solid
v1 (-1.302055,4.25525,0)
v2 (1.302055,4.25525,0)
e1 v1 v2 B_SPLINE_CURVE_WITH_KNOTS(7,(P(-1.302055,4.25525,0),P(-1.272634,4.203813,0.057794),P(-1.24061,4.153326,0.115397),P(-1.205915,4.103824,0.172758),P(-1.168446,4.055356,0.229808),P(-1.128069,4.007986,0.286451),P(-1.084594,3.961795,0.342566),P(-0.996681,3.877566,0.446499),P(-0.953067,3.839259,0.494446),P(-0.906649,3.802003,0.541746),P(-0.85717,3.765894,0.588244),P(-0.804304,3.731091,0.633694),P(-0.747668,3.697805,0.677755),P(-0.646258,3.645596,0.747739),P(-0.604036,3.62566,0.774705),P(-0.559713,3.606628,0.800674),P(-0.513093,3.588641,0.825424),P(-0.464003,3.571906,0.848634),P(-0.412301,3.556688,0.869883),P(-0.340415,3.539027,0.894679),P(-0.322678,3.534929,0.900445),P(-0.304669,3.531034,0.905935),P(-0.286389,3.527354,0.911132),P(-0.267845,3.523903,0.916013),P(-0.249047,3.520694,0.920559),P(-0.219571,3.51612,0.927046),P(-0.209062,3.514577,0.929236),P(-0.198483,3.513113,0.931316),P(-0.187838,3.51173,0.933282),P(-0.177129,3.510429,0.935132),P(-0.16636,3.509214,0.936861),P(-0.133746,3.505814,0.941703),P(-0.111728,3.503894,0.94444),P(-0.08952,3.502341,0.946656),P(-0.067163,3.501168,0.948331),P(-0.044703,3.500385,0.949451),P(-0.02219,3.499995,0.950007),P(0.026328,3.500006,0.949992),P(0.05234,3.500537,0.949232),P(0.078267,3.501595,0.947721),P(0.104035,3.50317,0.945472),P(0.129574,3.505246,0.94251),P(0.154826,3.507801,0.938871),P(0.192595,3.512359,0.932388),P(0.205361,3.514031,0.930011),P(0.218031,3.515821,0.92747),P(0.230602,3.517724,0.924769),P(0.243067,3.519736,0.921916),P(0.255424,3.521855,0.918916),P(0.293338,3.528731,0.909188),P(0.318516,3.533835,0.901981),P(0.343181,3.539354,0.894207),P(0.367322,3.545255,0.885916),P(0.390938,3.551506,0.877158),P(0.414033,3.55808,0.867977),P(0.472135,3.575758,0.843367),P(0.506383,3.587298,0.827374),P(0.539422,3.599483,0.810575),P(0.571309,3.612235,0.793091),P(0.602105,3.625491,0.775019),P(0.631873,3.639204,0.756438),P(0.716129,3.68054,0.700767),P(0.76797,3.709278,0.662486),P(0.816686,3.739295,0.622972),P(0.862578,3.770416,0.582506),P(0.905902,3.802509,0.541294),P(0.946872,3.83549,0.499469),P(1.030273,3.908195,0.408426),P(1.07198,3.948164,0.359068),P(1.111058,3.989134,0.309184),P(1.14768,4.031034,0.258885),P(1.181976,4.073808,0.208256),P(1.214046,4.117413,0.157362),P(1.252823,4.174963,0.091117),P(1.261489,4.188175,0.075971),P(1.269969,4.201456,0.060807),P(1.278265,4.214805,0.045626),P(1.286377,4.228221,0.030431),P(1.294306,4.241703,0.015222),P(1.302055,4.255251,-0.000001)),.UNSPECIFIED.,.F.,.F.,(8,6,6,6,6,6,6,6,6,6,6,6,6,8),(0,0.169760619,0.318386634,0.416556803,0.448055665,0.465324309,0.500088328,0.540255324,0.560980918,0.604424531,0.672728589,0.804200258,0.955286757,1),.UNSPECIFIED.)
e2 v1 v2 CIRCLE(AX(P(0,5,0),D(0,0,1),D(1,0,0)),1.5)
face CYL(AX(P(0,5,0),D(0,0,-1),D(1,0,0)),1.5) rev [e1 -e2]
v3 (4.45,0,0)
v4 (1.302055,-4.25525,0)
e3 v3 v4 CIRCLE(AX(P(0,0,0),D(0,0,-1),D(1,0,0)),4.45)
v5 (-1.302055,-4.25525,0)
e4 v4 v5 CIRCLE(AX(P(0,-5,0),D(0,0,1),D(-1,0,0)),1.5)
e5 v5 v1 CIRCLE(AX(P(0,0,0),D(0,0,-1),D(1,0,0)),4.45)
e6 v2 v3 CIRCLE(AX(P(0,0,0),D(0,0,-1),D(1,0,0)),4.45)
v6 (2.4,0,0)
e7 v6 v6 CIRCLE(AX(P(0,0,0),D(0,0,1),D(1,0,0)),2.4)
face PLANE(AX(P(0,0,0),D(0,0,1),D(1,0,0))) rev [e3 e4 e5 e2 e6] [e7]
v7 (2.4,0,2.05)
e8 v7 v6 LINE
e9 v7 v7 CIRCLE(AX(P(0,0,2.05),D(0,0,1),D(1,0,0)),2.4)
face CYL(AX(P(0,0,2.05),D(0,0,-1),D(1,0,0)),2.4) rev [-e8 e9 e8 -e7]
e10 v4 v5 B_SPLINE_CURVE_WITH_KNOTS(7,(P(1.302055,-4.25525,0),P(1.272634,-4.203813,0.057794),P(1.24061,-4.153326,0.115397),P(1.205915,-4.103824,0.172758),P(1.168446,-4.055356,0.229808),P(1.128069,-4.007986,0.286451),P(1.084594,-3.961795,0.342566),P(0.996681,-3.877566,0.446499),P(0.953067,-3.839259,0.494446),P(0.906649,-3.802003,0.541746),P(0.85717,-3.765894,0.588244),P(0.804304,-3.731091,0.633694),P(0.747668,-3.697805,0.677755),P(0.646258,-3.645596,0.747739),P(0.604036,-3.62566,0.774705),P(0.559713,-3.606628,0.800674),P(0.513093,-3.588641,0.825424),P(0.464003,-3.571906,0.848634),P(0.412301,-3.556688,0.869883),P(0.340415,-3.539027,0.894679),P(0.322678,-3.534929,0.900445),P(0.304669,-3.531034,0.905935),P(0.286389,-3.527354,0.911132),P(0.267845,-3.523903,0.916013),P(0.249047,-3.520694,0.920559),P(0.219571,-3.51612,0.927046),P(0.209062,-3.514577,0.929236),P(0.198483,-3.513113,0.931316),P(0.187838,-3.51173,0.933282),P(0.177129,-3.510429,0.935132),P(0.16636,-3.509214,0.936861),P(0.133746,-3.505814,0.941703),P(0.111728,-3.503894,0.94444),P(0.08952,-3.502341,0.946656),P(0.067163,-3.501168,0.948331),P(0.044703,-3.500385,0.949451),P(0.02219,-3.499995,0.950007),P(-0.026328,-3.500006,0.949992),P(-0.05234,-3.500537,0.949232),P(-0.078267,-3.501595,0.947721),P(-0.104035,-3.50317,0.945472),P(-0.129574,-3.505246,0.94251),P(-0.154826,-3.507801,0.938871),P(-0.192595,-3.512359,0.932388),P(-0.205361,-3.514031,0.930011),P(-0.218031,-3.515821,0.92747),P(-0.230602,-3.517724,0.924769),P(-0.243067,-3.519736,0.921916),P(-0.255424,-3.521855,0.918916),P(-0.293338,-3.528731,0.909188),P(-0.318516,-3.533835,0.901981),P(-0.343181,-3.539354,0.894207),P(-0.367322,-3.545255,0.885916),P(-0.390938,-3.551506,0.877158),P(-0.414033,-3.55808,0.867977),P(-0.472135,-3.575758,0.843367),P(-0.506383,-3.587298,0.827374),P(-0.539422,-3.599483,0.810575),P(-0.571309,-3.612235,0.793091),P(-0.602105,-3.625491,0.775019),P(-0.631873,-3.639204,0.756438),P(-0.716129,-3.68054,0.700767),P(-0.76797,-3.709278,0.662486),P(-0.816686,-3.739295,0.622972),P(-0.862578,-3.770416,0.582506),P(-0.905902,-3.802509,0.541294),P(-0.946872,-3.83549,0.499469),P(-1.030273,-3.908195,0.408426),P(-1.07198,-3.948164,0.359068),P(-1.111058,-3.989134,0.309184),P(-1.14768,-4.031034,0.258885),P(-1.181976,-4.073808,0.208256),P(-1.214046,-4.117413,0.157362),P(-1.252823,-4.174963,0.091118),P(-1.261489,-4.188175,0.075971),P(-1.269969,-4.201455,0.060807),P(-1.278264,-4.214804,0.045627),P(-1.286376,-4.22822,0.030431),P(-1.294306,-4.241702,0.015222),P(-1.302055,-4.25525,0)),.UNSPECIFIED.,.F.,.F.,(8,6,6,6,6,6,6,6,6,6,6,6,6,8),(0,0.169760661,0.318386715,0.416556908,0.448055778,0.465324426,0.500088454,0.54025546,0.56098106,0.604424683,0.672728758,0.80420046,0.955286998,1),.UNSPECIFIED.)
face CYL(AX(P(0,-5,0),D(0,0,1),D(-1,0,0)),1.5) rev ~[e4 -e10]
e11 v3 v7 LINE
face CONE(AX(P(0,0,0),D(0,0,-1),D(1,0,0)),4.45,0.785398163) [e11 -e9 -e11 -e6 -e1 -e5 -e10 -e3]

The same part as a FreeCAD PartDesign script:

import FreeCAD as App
import Part
import Sketcher
from FreeCAD import Vector

doc = App.newDocument("Part")
body = doc.addObject("PartDesign::Body", "Body")

# Sketch on XZ plane
sketch1 = body.newObject("Sketcher::SketchObject", "Sketch")
sketch1.AttachmentSupport = (doc.getObject("XZ_Plane"), [""])
sketch1.MapMode = "FlatFace"
sketch1.addGeometry([
    Part.LineSegment(Vector(2.4, 0, 0), Vector(4.45, 0, 0)),
    Part.LineSegment(Vector(4.45, 0, 0), Vector(2.4, 2.05, 0)),
    Part.LineSegment(Vector(2.4, 2.05, 0), Vector(2.4, 0, 0)),
], False)
sketch1.addConstraint([
    Sketcher.Constraint("Coincident", 0, 2, 1, 1),
    Sketcher.Constraint("Coincident", 1, 2, 2, 1),
    Sketcher.Constraint("Coincident", 2, 2, 0, 1),
    Sketcher.Constraint("Horizontal", 0),
    Sketcher.Constraint("Vertical", 2),
    Sketcher.Constraint("PointOnObject", 0, 2, -1),
    Sketcher.Constraint("Equal", 0, 2),
    Sketcher.Constraint("DistanceX", 0, 1, 0, 2, 2.05),
    Sketcher.Constraint("DistanceX", -1, 1, 1, 2, 2.4),
])
revolution = body.newObject("PartDesign::Revolution", "Revolution")
revolution.Profile = sketch1
revolution.ReferenceAxis = (sketch1, ["V_Axis"])
revolution.Angle = 360

# Sketch on XY plane
sketch2 = body.newObject("Sketcher::SketchObject", "Sketch001")
sketch2.AttachmentSupport = (doc.getObject("XY_Plane"), [""])
sketch2.MapMode = "FlatFace"
sketch2.addGeometry(Part.Circle(Vector(0, 5, 0), Vector(0, 0, 1), 1.5), False)
sketch2.addConstraint([
    Sketcher.Constraint("PointOnObject", 0, 3, -2),
    Sketcher.Constraint("Diameter", 0, 3.0),
    Sketcher.Constraint("DistanceY", -1, 1, 0, 3, 5.0),
])
pocket1 = body.newObject("PartDesign::Pocket", "Pocket")
pocket1.Profile = sketch2
pocket1.Type = "ThroughAll"
pocket1.Midplane = True
doc.recompute()

polarpattern = body.newObject("PartDesign::PolarPattern", "PolarPattern")
polarpattern.Originals = [pocket1]
polarpattern.Axis = (doc.getObject("Z_Axis"), [""])
polarpattern.Angle = 360
polarpattern.Occurrences = 2
body.Tip = polarpattern

doc.recompute()
